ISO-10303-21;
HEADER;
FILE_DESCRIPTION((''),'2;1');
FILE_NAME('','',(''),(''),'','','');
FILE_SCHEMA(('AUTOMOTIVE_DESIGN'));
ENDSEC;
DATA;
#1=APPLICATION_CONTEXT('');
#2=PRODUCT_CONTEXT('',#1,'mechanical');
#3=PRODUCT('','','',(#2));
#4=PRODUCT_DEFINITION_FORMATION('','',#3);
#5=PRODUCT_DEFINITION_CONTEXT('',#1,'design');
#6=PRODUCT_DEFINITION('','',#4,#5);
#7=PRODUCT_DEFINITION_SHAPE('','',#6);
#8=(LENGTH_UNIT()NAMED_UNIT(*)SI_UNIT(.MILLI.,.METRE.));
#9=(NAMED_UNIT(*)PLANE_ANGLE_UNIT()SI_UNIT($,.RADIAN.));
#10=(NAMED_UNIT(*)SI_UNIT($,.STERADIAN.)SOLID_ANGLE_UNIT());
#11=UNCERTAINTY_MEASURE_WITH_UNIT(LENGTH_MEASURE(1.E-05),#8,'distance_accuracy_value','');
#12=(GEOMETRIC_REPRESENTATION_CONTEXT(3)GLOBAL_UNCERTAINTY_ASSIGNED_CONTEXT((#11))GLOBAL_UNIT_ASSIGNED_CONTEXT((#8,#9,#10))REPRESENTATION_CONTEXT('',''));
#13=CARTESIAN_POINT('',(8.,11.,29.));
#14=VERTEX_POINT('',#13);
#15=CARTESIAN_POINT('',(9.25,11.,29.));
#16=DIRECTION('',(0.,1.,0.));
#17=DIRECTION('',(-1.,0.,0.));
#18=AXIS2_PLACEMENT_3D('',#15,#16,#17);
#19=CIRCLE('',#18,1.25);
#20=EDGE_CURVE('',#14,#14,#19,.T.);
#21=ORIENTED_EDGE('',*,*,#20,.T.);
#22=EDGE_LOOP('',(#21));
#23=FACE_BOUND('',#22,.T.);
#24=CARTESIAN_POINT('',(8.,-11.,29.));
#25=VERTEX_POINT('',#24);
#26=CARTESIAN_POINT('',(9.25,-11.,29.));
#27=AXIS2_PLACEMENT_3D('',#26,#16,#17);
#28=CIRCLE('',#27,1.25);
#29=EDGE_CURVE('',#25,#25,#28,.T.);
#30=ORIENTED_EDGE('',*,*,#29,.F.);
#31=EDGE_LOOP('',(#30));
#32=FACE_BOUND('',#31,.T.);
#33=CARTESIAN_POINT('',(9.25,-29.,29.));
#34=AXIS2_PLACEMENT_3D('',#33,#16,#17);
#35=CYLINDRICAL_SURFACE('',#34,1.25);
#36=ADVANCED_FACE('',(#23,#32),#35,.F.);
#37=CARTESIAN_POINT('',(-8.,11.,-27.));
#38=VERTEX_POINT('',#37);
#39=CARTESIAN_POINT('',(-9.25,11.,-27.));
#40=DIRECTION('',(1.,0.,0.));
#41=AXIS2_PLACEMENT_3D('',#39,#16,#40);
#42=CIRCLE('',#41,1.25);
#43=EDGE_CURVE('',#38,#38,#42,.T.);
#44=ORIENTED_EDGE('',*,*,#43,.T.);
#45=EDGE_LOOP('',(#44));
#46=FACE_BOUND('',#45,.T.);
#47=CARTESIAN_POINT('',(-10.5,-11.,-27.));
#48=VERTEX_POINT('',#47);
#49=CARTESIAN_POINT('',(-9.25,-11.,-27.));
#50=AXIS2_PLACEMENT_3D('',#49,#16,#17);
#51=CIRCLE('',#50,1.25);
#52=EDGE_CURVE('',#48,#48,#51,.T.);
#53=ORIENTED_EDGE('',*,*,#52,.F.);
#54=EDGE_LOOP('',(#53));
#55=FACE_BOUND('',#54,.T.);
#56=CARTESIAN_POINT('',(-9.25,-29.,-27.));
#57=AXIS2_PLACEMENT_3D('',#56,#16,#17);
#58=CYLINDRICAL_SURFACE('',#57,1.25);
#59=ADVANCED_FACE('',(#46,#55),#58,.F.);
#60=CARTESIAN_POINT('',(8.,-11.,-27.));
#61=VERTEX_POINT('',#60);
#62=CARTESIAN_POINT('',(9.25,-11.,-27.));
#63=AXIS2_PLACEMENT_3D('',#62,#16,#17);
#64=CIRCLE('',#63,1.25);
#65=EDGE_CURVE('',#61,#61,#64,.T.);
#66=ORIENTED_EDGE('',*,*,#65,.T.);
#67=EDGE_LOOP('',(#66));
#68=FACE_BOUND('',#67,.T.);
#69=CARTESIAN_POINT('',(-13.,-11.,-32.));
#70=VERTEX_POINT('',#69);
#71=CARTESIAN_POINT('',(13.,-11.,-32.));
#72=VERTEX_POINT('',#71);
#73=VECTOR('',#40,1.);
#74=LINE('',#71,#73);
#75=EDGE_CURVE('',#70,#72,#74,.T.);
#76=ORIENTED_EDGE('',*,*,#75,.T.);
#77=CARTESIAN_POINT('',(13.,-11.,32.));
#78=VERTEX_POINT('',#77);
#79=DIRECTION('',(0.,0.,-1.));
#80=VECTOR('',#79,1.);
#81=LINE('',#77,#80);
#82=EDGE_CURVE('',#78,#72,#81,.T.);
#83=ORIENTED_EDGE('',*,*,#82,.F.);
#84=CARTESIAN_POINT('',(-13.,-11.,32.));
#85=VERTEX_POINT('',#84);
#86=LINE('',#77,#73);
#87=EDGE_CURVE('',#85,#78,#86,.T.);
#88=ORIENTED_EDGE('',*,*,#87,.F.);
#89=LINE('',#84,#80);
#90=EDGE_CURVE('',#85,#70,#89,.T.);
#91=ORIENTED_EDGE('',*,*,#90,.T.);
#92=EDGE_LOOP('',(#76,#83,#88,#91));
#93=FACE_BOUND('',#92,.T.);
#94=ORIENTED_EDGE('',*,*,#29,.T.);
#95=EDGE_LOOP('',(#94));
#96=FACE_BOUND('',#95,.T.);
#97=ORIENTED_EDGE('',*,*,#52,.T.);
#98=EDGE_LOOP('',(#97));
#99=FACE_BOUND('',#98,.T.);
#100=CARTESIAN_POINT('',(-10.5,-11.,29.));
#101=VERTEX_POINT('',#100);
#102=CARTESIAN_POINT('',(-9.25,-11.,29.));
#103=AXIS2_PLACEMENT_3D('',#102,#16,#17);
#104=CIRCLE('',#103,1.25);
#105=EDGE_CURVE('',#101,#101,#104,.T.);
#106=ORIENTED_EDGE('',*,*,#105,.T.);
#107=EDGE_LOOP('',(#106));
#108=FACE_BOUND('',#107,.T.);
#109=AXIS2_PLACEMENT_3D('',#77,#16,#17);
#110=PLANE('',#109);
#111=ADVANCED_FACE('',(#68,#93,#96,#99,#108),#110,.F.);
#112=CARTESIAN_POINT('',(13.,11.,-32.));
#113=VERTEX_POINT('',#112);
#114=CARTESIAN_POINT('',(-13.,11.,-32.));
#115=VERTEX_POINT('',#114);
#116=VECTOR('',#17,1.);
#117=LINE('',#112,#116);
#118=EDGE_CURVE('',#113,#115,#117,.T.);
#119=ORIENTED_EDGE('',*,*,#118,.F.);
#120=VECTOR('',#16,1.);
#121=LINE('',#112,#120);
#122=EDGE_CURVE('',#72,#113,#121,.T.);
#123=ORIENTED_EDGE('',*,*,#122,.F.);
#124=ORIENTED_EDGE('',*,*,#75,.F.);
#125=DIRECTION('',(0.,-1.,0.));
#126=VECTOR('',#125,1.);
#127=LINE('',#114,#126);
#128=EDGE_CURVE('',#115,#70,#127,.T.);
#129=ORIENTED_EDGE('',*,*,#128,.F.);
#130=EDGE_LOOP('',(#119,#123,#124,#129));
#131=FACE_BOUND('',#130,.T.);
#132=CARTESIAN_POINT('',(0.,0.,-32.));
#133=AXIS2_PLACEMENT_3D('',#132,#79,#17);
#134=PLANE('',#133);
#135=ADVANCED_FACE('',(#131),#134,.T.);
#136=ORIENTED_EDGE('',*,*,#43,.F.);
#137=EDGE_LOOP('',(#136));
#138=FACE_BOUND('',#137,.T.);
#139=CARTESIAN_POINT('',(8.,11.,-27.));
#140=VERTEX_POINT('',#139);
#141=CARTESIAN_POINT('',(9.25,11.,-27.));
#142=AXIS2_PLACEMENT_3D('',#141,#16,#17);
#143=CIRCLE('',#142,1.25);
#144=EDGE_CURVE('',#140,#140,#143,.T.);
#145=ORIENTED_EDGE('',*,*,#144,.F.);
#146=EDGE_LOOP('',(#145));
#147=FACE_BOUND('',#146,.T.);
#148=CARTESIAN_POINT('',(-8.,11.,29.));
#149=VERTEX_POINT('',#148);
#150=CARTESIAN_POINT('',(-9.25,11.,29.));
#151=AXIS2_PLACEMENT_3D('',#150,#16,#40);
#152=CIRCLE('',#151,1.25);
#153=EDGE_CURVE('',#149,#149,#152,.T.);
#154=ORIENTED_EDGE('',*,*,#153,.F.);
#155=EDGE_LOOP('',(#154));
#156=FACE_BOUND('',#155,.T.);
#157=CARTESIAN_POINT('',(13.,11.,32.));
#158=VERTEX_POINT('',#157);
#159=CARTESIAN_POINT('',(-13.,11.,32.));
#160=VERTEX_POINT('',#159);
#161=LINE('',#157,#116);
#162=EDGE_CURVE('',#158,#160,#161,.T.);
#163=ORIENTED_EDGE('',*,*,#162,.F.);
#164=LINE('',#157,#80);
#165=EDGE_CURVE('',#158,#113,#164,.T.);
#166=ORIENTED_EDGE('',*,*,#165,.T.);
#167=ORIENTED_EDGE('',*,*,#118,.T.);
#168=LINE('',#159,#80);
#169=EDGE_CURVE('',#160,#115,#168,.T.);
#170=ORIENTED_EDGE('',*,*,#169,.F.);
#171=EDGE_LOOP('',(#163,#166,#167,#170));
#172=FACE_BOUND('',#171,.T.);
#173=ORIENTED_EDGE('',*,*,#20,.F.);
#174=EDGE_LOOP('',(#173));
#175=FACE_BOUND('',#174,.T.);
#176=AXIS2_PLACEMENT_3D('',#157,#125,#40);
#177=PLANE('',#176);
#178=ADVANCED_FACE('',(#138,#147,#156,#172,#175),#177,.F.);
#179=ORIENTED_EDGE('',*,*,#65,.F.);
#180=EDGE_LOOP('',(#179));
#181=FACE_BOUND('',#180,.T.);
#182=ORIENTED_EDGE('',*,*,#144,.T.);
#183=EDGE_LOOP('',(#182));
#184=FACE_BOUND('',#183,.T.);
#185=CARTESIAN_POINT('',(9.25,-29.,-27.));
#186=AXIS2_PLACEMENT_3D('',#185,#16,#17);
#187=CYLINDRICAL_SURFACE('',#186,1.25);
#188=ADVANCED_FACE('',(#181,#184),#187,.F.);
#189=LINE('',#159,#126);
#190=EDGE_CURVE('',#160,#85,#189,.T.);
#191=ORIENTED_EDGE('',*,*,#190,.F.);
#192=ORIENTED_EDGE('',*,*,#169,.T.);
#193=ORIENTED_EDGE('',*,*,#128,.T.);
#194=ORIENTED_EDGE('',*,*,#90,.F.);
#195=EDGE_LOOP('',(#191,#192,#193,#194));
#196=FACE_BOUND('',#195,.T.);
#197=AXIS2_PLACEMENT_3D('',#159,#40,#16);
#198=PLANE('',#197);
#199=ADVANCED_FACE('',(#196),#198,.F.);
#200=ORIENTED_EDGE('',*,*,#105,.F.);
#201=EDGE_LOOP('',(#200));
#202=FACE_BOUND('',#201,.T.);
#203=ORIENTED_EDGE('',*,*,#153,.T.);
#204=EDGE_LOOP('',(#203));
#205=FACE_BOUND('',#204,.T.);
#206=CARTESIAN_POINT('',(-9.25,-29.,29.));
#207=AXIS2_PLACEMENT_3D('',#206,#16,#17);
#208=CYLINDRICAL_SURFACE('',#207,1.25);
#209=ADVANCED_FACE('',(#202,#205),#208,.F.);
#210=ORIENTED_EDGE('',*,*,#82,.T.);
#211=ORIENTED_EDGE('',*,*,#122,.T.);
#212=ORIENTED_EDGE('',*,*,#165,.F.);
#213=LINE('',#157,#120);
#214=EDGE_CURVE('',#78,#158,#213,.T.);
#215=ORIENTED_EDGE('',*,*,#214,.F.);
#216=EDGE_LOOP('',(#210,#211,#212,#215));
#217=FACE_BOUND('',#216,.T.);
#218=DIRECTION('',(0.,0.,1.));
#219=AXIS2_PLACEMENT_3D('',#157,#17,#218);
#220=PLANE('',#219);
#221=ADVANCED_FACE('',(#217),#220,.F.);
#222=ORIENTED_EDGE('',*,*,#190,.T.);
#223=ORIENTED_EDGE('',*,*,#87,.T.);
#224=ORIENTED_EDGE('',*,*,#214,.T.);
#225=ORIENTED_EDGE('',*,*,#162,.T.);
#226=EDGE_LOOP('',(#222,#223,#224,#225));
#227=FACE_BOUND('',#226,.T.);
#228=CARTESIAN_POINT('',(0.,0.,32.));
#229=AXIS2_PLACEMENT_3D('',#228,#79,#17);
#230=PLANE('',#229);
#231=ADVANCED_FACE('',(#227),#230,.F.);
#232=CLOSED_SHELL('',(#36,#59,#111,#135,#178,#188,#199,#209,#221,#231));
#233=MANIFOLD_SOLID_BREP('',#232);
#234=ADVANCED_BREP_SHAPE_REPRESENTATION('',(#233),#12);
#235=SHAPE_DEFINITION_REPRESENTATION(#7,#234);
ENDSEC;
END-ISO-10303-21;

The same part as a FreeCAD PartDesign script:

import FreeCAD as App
import Part
import Sketcher

V = App.Vector

doc = App.newDocument("Part")
body = doc.addObject("PartDesign::Body", "Body")

# Sketch on XY plane
sketch1 = doc.addObject("Sketcher::SketchObject", "Sketch")
body.addObject(sketch1)
sketch1.AttachmentSupport = (doc.XY_Plane, [""])
sketch1.MapMode = "FlatFace"
sketch1.addGeometry([
    Part.LineSegment(V(-13, 11, 0), V(-13, -11, 0)),
    Part.LineSegment(V(-13, -11, 0), V(13, -11, 0)),
    Part.LineSegment(V(13, -11, 0), V(13, 11, 0)),
    Part.LineSegment(V(13, 11, 0), V(-13, 11, 0)),
], False)
sketch1.addConstraint([
    Sketcher.Constraint("Coincident", 0, 2, 1, 1),
    Sketcher.Constraint("Coincident", 1, 2, 2, 1),
    Sketcher.Constraint("Coincident", 2, 2, 3, 1),
    Sketcher.Constraint("Coincident", 3, 2, 0, 1),
    Sketcher.Constraint("Vertical", 0),
    Sketcher.Constraint("Horizontal", 1),
    Sketcher.Constraint("Vertical", 2),
    Sketcher.Constraint("Horizontal", 3),
    Sketcher.Constraint("Symmetric", 0, 2, 2, 2, -1, 1),
    Sketcher.Constraint("DistanceX", 1, 1, 1, 2, 26.0),
    Sketcher.Constraint("DistanceY", 0, 2, 0, 1, 22.0),
])
pad1 = doc.addObject("PartDesign::Pad", "Pad")
body.addObject(pad1)
pad1.Profile = sketch1
pad1.Length = 64
pad1.Midplane = True

# Sketch on XZ plane
sketch2 = doc.addObject("Sketcher::SketchObject", "Sketch001")
body.addObject(sketch2)
sketch2.AttachmentSupport = (doc.XZ_Plane, [""])
sketch2.MapMode = "FlatFace"
sketch2.AttachmentOffset = App.Placement(V(0, 0, -11), App.Rotation())
sketch2.addGeometry([
    Part.Circle(V(9.25, 29, 0), V(0, 0, 1), 1.25),
    Part.Circle(V(9.25, -27, 0), V(0, 0, 1), 1.25),
    Part.Circle(V(-9.25, -27, 0), V(0, 0, 1), 1.25),
    Part.Circle(V(-9.25, 29, 0), V(0, 0, 1), 1.25),
], False)
sketch2.addConstraint([
    Sketcher.Constraint("Equal", 0, 1),
    Sketcher.Constraint("Equal", 1, 2),
    Sketcher.Constraint("Equal", 2, 3),
    Sketcher.Constraint("Symmetric", 1, 3, 2, 3, -2),
    Sketcher.Constraint("Symmetric", 0, 3, 3, 3, -2),
    Sketcher.Constraint("Vertical", 0, 3, 1, 3),
    Sketcher.Constraint("Diameter", 0, 2.5),
    Sketcher.Constraint("DistanceY", -1, 1, 0, 3, 29.0),
    Sketcher.Constraint("DistanceY", 1, 3, -1, 1, 27.0),
    Sketcher.Constraint("DistanceX", 2, 3, 1, 3, 18.5),
])
pocket1 = doc.addObject("PartDesign::Pocket", "Pocket")
body.addObject(pocket1)
pocket1.Profile = sketch2
pocket1.Length = 40
pocket1.Reversed = True

doc.recompute()
